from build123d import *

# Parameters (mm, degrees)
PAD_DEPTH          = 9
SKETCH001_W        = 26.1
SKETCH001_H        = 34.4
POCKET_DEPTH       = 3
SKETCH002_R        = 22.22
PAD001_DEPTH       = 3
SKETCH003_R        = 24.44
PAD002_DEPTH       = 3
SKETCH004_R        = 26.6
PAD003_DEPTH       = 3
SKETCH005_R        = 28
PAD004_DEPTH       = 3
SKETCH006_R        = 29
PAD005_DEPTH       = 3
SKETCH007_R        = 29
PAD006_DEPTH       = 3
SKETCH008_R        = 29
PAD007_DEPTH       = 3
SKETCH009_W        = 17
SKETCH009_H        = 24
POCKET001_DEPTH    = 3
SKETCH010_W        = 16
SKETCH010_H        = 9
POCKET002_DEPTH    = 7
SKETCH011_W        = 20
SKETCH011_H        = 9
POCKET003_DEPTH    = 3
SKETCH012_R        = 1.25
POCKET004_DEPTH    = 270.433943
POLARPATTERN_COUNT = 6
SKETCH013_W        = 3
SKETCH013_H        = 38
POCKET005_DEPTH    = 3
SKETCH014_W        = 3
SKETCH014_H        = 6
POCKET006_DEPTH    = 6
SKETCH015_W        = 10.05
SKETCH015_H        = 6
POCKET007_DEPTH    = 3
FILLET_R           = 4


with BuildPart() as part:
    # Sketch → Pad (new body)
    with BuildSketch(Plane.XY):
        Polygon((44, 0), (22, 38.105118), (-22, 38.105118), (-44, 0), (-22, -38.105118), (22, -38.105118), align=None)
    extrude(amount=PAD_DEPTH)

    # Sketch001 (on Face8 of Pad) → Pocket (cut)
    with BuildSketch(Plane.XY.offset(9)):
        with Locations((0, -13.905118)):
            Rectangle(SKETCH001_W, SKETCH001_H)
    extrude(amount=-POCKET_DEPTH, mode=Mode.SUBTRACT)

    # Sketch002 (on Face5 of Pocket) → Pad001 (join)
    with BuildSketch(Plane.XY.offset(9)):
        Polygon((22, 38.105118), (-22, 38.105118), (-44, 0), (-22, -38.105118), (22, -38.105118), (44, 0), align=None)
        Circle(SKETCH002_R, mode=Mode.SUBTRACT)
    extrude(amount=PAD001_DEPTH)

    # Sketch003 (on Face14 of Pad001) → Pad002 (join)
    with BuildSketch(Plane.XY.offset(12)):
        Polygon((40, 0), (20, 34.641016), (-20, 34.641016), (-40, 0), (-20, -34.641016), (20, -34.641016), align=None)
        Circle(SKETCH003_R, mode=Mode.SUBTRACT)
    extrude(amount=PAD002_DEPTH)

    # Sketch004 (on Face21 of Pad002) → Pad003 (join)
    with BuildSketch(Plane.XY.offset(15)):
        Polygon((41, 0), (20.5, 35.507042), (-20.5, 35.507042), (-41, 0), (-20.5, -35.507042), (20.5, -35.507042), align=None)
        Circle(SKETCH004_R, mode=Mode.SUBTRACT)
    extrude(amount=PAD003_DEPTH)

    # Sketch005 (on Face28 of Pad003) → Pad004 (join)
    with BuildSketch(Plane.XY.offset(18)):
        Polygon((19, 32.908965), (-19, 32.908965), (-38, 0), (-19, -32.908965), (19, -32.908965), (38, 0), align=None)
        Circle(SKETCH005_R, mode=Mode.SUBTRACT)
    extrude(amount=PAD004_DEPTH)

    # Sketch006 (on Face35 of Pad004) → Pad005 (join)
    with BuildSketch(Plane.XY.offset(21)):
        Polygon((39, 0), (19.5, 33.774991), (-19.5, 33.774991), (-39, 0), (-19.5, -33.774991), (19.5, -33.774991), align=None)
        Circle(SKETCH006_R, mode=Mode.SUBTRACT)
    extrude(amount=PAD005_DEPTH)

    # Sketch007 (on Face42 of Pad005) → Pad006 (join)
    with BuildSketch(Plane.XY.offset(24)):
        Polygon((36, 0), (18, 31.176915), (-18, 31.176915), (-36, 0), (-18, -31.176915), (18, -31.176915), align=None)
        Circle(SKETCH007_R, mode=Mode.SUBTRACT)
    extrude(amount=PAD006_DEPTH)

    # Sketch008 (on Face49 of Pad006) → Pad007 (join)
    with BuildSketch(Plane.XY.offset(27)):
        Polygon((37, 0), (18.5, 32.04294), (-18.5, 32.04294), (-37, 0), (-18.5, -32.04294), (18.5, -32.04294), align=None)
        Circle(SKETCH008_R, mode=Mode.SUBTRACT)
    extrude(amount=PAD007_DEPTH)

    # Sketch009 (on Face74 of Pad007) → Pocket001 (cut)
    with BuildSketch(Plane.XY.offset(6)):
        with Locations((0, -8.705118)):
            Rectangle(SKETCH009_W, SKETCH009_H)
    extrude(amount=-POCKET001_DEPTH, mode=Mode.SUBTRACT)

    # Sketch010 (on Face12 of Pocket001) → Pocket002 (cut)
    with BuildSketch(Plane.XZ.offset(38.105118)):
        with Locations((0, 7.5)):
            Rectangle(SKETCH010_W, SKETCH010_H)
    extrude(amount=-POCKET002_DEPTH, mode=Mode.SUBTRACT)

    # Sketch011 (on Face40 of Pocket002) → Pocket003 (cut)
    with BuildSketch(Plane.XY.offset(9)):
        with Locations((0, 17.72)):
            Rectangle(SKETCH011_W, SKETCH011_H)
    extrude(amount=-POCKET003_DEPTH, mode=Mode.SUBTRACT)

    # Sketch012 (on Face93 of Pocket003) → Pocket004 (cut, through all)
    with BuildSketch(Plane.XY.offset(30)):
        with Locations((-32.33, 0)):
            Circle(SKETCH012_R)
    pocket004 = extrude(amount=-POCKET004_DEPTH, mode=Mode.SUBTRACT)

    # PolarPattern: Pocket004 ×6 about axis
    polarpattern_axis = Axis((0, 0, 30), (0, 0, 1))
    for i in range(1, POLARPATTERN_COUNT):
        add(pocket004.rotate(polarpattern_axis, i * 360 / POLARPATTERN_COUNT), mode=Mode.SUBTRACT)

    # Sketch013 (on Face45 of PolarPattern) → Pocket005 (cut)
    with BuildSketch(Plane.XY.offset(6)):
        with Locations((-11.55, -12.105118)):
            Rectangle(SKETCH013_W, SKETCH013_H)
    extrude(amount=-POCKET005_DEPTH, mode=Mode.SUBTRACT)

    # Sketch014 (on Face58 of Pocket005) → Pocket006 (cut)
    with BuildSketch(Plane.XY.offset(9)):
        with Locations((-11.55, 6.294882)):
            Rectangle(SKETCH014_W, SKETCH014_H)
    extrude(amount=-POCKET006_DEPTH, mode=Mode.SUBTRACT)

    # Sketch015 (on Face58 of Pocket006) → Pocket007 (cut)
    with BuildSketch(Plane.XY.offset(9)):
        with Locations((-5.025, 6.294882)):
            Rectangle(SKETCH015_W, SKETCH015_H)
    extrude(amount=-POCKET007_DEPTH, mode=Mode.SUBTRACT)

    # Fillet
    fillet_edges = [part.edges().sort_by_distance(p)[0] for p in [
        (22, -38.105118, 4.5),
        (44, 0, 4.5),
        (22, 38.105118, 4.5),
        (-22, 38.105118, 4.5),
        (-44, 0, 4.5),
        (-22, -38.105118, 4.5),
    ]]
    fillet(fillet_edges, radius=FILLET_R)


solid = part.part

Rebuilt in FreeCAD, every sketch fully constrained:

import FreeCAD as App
import Part
import Sketcher
Q = App.Units.Quantity


def edges_at(feature, points):
    """Names of the edges that pass closest to the given points."""
    edges = feature.Shape.Edges
    near = lambda p: min(range(len(edges)), key=lambda i: edges[i].distToShape(Part.Vertex(*p))[0])
    return sorted({f"Edge{near(p) + 1}" for p in points})


def add_polygon(sketch, points):
    """Adds a closed chain of lines whose ends are joined by coincident constraints."""
    first, n = sketch.GeometryCount, len(points)
    for a, b in zip(points, points[1:] + points[:1]):
        sketch.addGeometry(Part.LineSegment(App.Vector(*a, 0), App.Vector(*b, 0)), False)
    for i in range(n):
        sketch.addConstraint(Sketcher.Constraint("Coincident", first + i, 2, first + (i + 1) % n, 1))

doc = App.newDocument("Part")
body = doc.addObject("PartDesign::Body", "Body")

# Sketch on XY plane
sketch1 = body.newObject("Sketcher::SketchObject", "Sketch")
sketch1.AttachmentSupport = (doc.getObject("XY_Plane"), [""])
sketch1.MapMode = "FlatFace"
add_polygon(sketch1, [(44, 0), (22, 38), (-22, 38), (-44, 0), (-22, -38), (22, -38)])  # lines 0-5
sketch1.addConstraint([
    Sketcher.Constraint("Horizontal", 1),
    Sketcher.Constraint("Horizontal", 4),
    Sketcher.Constraint("Symmetric", 0, 2, 3, 2, -1, 1),
    Sketcher.Constraint("Symmetric", 2, 2, 5, 2, -1, 1),
    Sketcher.Constraint("PointOnObject", 2, 2, -1),
    Sketcher.Constraint("Parallel", 2, 5),
    Sketcher.Constraint("Vertical", 1, 2, 3, 2),
    Sketcher.Constraint("DistanceX", 1, 2, 1, 1, Q("44 mm")),
    Sketcher.Constraint("Angle", 0, Q("120 deg")),
    Sketcher.Constraint("Distance", 0, Q("44 mm")),
])
pad1 = body.newObject("PartDesign::Pad", "Pad")
pad1.Profile = sketch1
pad1.Length = 9

# Sketch on XY plane
sketch2 = body.newObject("Sketcher::SketchObject", "Sketch001")
sketch2.AttachmentSupport = (doc.getObject("XY_Plane"), [""])
sketch2.MapMode = "FlatFace"
sketch2.AttachmentOffset = App.Placement(App.Vector(0, 0, 9), App.Rotation())
add_polygon(sketch2, [(-13, 3), (-13, -31), (13, -31), (13, 3)])  # lines 0-3
sketch2.addConstraint([
    Sketcher.Constraint("Vertical", 0),
    Sketcher.Constraint("Horizontal", 1),
    Sketcher.Constraint("Vertical", 2),
    Sketcher.Constraint("Horizontal", 3),
    Sketcher.Constraint("DistanceX", 1, 1, 1, 2, Q("26.1 mm")),
    Sketcher.Constraint("DistanceY", 0, 2, 0, 1, Q("34.4 mm")),
    Sketcher.Constraint("DistanceX", 0, 2, -1, 1, Q("13.05 mm")),
    Sketcher.Constraint("DistanceY", 0, 2, -1, 1, Q("31.105118 mm")),
])
pocket1 = body.newObject("PartDesign::Pocket", "Pocket")
pocket1.Profile = sketch2
pocket1.Length = 3

# Sketch on XY plane
sketch3 = body.newObject("Sketcher::SketchObject", "Sketch002")
sketch3.AttachmentSupport = (doc.getObject("XY_Plane"), [""])
sketch3.MapMode = "FlatFace"
sketch3.AttachmentOffset = App.Placement(App.Vector(0, 0, 9), App.Rotation())
add_polygon(sketch3, [(22, 38), (-22, 38), (-44, 0), (-22, -38), (22, -38), (44, 0)])  # lines 0-5
sketch3.addGeometry(Part.Circle(App.Vector(0, 0, 0), App.Vector(0, 0, 1), 22), False)  # 6
sketch3.addConstraint([
    Sketcher.Constraint("Horizontal", 0),
    Sketcher.Constraint("Horizontal", 3),
    Sketcher.Constraint("Coincident", 6, 3, -1, 1),
    Sketcher.Constraint("Symmetric", 0, 2, 3, 2, -1, 1),
    Sketcher.Constraint("Symmetric", 1, 2, 4, 2, -1, 1),
    Sketcher.Constraint("PointOnObject", 1, 2, -1),
    Sketcher.Constraint("Parallel", 2, 5),
    Sketcher.Constraint("Vertical", 0, 2, 2, 2),
    Sketcher.Constraint("Diameter", 6, Q("44.44 mm")),
    Sketcher.Constraint("DistanceX", 0, 2, 0, 1, Q("44 mm")),
    Sketcher.Constraint("Angle", 1, Q("-120 deg")),
    Sketcher.Constraint("Distance", 1, Q("44 mm")),
])
pad2 = body.newObject("PartDesign::Pad", "Pad001")
pad2.Profile = sketch3
pad2.Length = 3

# Sketch on XY plane
sketch4 = body.newObject("Sketcher::SketchObject", "Sketch003")
sketch4.AttachmentSupport = (doc.getObject("XY_Plane"), [""])
sketch4.MapMode = "FlatFace"
sketch4.AttachmentOffset = App.Placement(App.Vector(0, 0, 12), App.Rotation())
add_polygon(sketch4, [(40, 0), (20, 35), (-20, 35), (-40, 0), (-20, -35), (20, -35)])  # lines 0-5
sketch4.addGeometry(Part.Circle(App.Vector(0, 0, 0), App.Vector(0, 0, 1), 24), False)  # 6
sketch4.addConstraint([
    Sketcher.Constraint("Horizontal", 1),
    Sketcher.Constraint("Horizontal", 4),
    Sketcher.Constraint("Coincident", 6, 3, -1, 1),
    Sketcher.Constraint("Symmetric", 0, 2, 3, 2, -1, 1),
    Sketcher.Constraint("Symmetric", 2, 2, 5, 2, -1, 1),
    Sketcher.Constraint("PointOnObject", 2, 2, -1),
    Sketcher.Constraint("Parallel", 2, 5),
    Sketcher.Constraint("Vertical", 1, 2, 3, 2),
    Sketcher.Constraint("Diameter", 6, Q("48.88 mm")),
    Sketcher.Constraint("DistanceX", 1, 2, 1, 1, Q("40 mm")),
    Sketcher.Constraint("Angle", 0, Q("120 deg")),
    Sketcher.Constraint("Distance", 0, Q("40 mm")),
])
pad3 = body.newObject("PartDesign::Pad", "Pad002")
pad3.Profile = sketch4
pad3.Length = 3

# Sketch on XY plane
sketch5 = body.newObject("Sketcher::SketchObject", "Sketch004")
sketch5.AttachmentSupport = (doc.getObject("XY_Plane"), [""])
sketch5.MapMode = "FlatFace"
sketch5.AttachmentOffset = App.Placement(App.Vector(0, 0, 15), App.Rotation())
add_polygon(sketch5, [(41, 0), (20, 36), (-20, 36), (-41, 0), (-20, -36), (20, -36)])  # lines 0-5
sketch5.addGeometry(Part.Circle(App.Vector(0, 0, 0), App.Vector(0, 0, 1), 27), False)  # 6
sketch5.addConstraint([
    Sketcher.Constraint("Horizontal", 1),
    Sketcher.Constraint("Horizontal", 4),
    Sketcher.Constraint("Coincident", 6, 3, -1, 1),
    Sketcher.Constraint("Symmetric", 0, 2, 3, 2, -1, 1),
    Sketcher.Constraint("Symmetric", 2, 2, 5, 2, -1, 1),
    Sketcher.Constraint("PointOnObject", 2, 2, -1),
    Sketcher.Constraint("Parallel", 2, 5),
    Sketcher.Constraint("Vertical", 1, 2, 3, 2),
    Sketcher.Constraint("Diameter", 6, Q("53.2 mm")),
    Sketcher.Constraint("DistanceX", 1, 2, 1, 1, Q("41 mm")),
    Sketcher.Constraint("Angle", 0, Q("120 deg")),
    Sketcher.Constraint("Distance", 0, Q("41 mm")),
])
pad4 = body.newObject("PartDesign::Pad", "Pad003")
pad4.Profile = sketch5
pad4.Length = 3

# Sketch on XY plane
sketch6 = body.newObject("Sketcher::SketchObject", "Sketch005")
sketch6.AttachmentSupport = (doc.getObject("XY_Plane"), [""])
sketch6.MapMode = "FlatFace"
sketch6.AttachmentOffset = App.Placement(App.Vector(0, 0, 18), App.Rotation())
add_polygon(sketch6, [(19, 33), (-19, 33), (-38, 0), (-19, -33), (19, -33), (38, 0)])  # lines 0-5
sketch6.addGeometry(Part.Circle(App.Vector(0, 0, 0), App.Vector(0, 0, 1), 28), False)  # 6
sketch6.addConstraint([
    Sketcher.Constraint("Horizontal", 0),
    Sketcher.Constraint("Horizontal", 3),
    Sketcher.Constraint("Coincident", 6, 3, -1, 1),
    Sketcher.Constraint("Symmetric", 0, 2, 3, 2, -1, 1),
    Sketcher.Constraint("Symmetric", 1, 2, 4, 2, -1, 1),
    Sketcher.Constraint("PointOnObject", 1, 2, -1),
    Sketcher.Constraint("Parallel", 2, 5),
    Sketcher.Constraint("Vertical", 0, 2, 2, 2),
    Sketcher.Constraint("Diameter", 6, Q("56 mm")),
    Sketcher.Constraint("DistanceX", 0, 2, 0, 1, Q("38 mm")),
    Sketcher.Constraint("Angle", 1, Q("-120 deg")),
    Sketcher.Constraint("Distance", 1, Q("38 mm")),
])
pad5 = body.newObject("PartDesign::Pad", "Pad004")
pad5.Profile = sketch6
pad5.Length = 3

# Sketch on XY plane
sketch7 = body.newObject("Sketcher::SketchObject", "Sketch006")
sketch7.AttachmentSupport = (doc.getObject("XY_Plane"), [""])
sketch7.MapMode = "FlatFace"
sketch7.AttachmentOffset = App.Placement(App.Vector(0, 0, 21), App.Rotation())
add_polygon(sketch7, [(39, 0), (20, 34), (-20, 34), (-39, 0), (-20, -34), (20, -34)])  # lines 0-5
sketch7.addGeometry(Part.Circle(App.Vector(0, 0, 0), App.Vector(0, 0, 1), 29), False)  # 6
sketch7.addConstraint([
    Sketcher.Constraint("Horizontal", 1),
    Sketcher.Constraint("Horizontal", 4),
    Sketcher.Constraint("Coincident", 6, 3, -1, 1),
    Sketcher.Constraint("Symmetric", 0, 2, 3, 2, -1, 1),
    Sketcher.Constraint("Symmetric", 2, 2, 5, 2, -1, 1),
    Sketcher.Constraint("PointOnObject", 2, 2, -1),
    Sketcher.Constraint("Parallel", 2, 5),
    Sketcher.Constraint("Vertical", 1, 2, 3, 2),
    Sketcher.Constraint("Diameter", 6, Q("58 mm")),
    Sketcher.Constraint("DistanceX", 1, 2, 1, 1, Q("39 mm")),
    Sketcher.Constraint("Angle", 0, Q("120 deg")),
    Sketcher.Constraint("Distance", 0, Q("39 mm")),
])
pad6 = body.newObject("PartDesign::Pad", "Pad005")
pad6.Profile = sketch7
pad6.Length = 3

# Sketch on XY plane
sketch8 = body.newObject("Sketcher::SketchObject", "Sketch007")
sketch8.AttachmentSupport = (doc.getObject("XY_Plane"), [""])
sketch8.MapMode = "FlatFace"
sketch8.AttachmentOffset = App.Placement(App.Vector(0, 0, 24), App.Rotation())
add_polygon(sketch8, [(36, 0), (18, 31), (-18, 31), (-36, 0), (-18, -31), (18, -31)])  # lines 0-5
sketch8.addGeometry(Part.Circle(App.Vector(0, 0, 0), App.Vector(0, 0, 1), 29), False)  # 6
sketch8.addConstraint([
    Sketcher.Constraint("Horizontal", 1),
    Sketcher.Constraint("Horizontal", 4),
    Sketcher.Constraint("Coincident", 6, 3, -1, 1),
    Sketcher.Constraint("Symmetric", 0, 2, 3, 2, -1, 1),
    Sketcher.Constraint("Symmetric", 2, 2, 5, 2, -1, 1),
    Sketcher.Constraint("PointOnObject", 2, 2, -1),
    Sketcher.Constraint("Parallel", 2, 5),
    Sketcher.Constraint("Vertical", 1, 2, 3, 2),
    Sketcher.Constraint("Diameter", 6, Q("58 mm")),
    Sketcher.Constraint("DistanceX", 1, 2, 1, 1, Q("36 mm")),
    Sketcher.Constraint("Angle", 0, Q("120 deg")),
    Sketcher.Constraint("Distance", 0, Q("36 mm")),
])
pad7 = body.newObject("PartDesign::Pad", "Pad006")
pad7.Profile = sketch8
pad7.Length = 3

# Sketch on XY plane
sketch9 = body.newObject("Sketcher::SketchObject", "Sketch008")
sketch9.AttachmentSupport = (doc.getObject("XY_Plane"), [""])
sketch9.MapMode = "FlatFace"
sketch9.AttachmentOffset = App.Placement(App.Vector(0, 0, 27), App.Rotation())
add_polygon(sketch9, [(37, 0), (18, 32), (-18, 32), (-37, 0), (-18, -32), (18, -32)])  # lines 0-5
sketch9.addGeometry(Part.Circle(App.Vector(0, 0, 0), App.Vector(0, 0, 1), 29), False)  # 6
sketch9.addConstraint([
    Sketcher.Constraint("Horizontal", 1),
    Sketcher.Constraint("Horizontal", 4),
    Sketcher.Constraint("Coincident", 6, 3, -1, 1),
    Sketcher.Constraint("Symmetric", 0, 2, 3, 2, -1, 1),
    Sketcher.Constraint("Symmetric", 2, 2, 5, 2, -1, 1),
    Sketcher.Constraint("PointOnObject", 2, 2, -1),
    Sketcher.Constraint("Parallel", 2, 5),
    Sketcher.Constraint("Vertical", 1, 2, 3, 2),
    Sketcher.Constraint("Diameter", 6, Q("58 mm")),
    Sketcher.Constraint("DistanceX", 1, 2, 1, 1, Q("37 mm")),
    Sketcher.Constraint("Angle", 0, Q("120 deg")),
    Sketcher.Constraint("Distance", 0, Q("37 mm")),
])
pad8 = body.newObject("PartDesign::Pad", "Pad007")
pad8.Profile = sketch9
pad8.Length = 3

# Sketch on XY plane
sketch10 = body.newObject("Sketcher::SketchObject", "Sketch009")
sketch10.AttachmentSupport = (doc.getObject("XY_Plane"), [""])
sketch10.MapMode = "FlatFace"
sketch10.AttachmentOffset = App.Placement(App.Vector(0, 0, 6), App.Rotation())
add_polygon(sketch10, [(-8, 3), (-8, -21), (8, -21), (8, 3)])  # lines 0-3
sketch10.addConstraint([
    Sketcher.Constraint("Vertical", 0),
    Sketcher.Constraint("Horizontal", 1),
    Sketcher.Constraint("Vertical", 2),
    Sketcher.Constraint("Horizontal", 3),
    Sketcher.Constraint("DistanceX", 1, 1, 1, 2, Q("17 mm")),
    Sketcher.Constraint("DistanceY", 0, 2, 0, 1, Q("24 mm")),
    Sketcher.Constraint("DistanceX", 0, 2, -1, 1, Q("8.5 mm")),
    Sketcher.Constraint("DistanceY", -1, 1, 2, 2, Q("3.294882 mm")),
])
pocket2 = body.newObject("PartDesign::Pocket", "Pocket001")
pocket2.Profile = sketch10
pocket2.Length = 3

# Sketch on XZ plane
sketch11 = body.newObject("Sketcher::SketchObject", "Sketch010")
sketch11.AttachmentSupport = (doc.getObject("XZ_Plane"), [""])
sketch11.MapMode = "FlatFace"
sketch11.AttachmentOffset = App.Placement(App.Vector(0, 0, 38.105118), App.Rotation())
add_polygon(sketch11, [(-8, 12), (-8, 3), (8, 3), (8, 12)])  # lines 0-3
sketch11.addConstraint([
    Sketcher.Constraint("Vertical", 0),
    Sketcher.Constraint("Horizontal", 1),
    Sketcher.Constraint("Vertical", 2),
    Sketcher.Constraint("Horizontal", 3),
    Sketcher.Constraint("DistanceX", 1, 1, 1, 2, Q("16 mm")),
    Sketcher.Constraint("DistanceY", 0, 2, 0, 1, Q("9 mm")),
    Sketcher.Constraint("DistanceX", 0, 2, -1, 1, Q("8 mm")),
    Sketcher.Constraint("DistanceY", -1, 1, 0, 2, Q("3 mm")),
])
pocket3 = body.newObject("PartDesign::Pocket", "Pocket002")
pocket3.Profile = sketch11
pocket3.Length = 7

# Sketch on XY plane
sketch12 = body.newObject("Sketcher::SketchObject", "Sketch011")
sketch12.AttachmentSupport = (doc.getObject("XY_Plane"), [""])
sketch12.MapMode = "FlatFace"
sketch12.AttachmentOffset = App.Placement(App.Vector(0, 0, 9), App.Rotation())
add_polygon(sketch12, [(-10, 22), (-10, 13), (10, 13), (10, 22)])  # lines 0-3
sketch12.addConstraint([
    Sketcher.Constraint("Vertical", 0),
    Sketcher.Constraint("Horizontal", 1),
    Sketcher.Constraint("Vertical", 2),
    Sketcher.Constraint("Horizontal", 3),
    Sketcher.Constraint("DistanceX", 1, 1, 1, 2, Q("20 mm")),
    Sketcher.Constraint("DistanceY", 0, 2, 0, 1, Q("9 mm")),
    Sketcher.Constraint("DistanceX", 0, 2, -1, 1, Q("10 mm")),
    Sketcher.Constraint("DistanceY", -1, 1, 0, 2, Q("13.22 mm")),
])
pocket4 = body.newObject("PartDesign::Pocket", "Pocket003")
pocket4.Profile = sketch12
pocket4.Length = 3

# Sketch on XY plane
sketch13 = body.newObject("Sketcher::SketchObject", "Sketch012")
sketch13.AttachmentSupport = (doc.getObject("XY_Plane"), [""])
sketch13.MapMode = "FlatFace"
sketch13.AttachmentOffset = App.Placement(App.Vector(0, 0, 30), App.Rotation())
sketch13.addGeometry(Part.Circle(App.Vector(-32.3, 0, 0), App.Vector(0, 0, 1), 1.2), False)
sketch13.addConstraint([
    Sketcher.Constraint("PointOnObject", 0, 3, -1),
    Sketcher.Constraint("Diameter", 0, Q("2.5 mm")),
    Sketcher.Constraint("DistanceX", 0, 3, -1, 1, Q("32.33 mm")),
])
pocket5 = body.newObject("PartDesign::Pocket", "Pocket004")
pocket5.Profile = sketch13
pocket5.Type = "ThroughAll"
doc.recompute()

polarpattern = body.newObject("PartDesign::PolarPattern", "PolarPattern")
polarpattern.Originals = [pocket5]
polarpattern.Axis = (doc.getObject("Z_Axis"), [""])
polarpattern.Angle = 360
polarpattern.Occurrences = 6
body.Tip = polarpattern

# Sketch on XY plane
sketch14 = body.newObject("Sketcher::SketchObject", "Sketch013")
sketch14.AttachmentSupport = (doc.getObject("XY_Plane"), [""])
sketch14.MapMode = "FlatFace"
sketch14.AttachmentOffset = App.Placement(App.Vector(0, 0, 6), App.Rotation())
add_polygon(sketch14, [(-13.1, 6.9), (-13.1, -31.1), (-10.1, -31.1), (-10.1, 6.9)])  # lines 0-3
sketch14.addConstraint([
    Sketcher.Constraint("Vertical", 0),
    Sketcher.Constraint("Horizontal", 1),
    Sketcher.Constraint("Vertical", 2),
    Sketcher.Constraint("Horizontal", 3),
    Sketcher.Constraint("DistanceX", 1, 1, 1, 2, Q("3 mm")),
    Sketcher.Constraint("DistanceY", 0, 2, 0, 1, Q("38 mm")),
    Sketcher.Constraint("DistanceX", 0, 2, -1, 1, Q("13.05 mm")),
    Sketcher.Constraint("DistanceY", 0, 2, -1, 1, Q("31.105118 mm")),
])
pocket6 = body.newObject("PartDesign::Pocket", "Pocket005")
pocket6.Profile = sketch14
pocket6.Length = 3

# Sketch on XY plane
sketch15 = body.newObject("Sketcher::SketchObject", "Sketch014")
sketch15.AttachmentSupport = (doc.getObject("XY_Plane"), [""])
sketch15.MapMode = "FlatFace"
sketch15.AttachmentOffset = App.Placement(App.Vector(0, 0, 9), App.Rotation())
add_polygon(sketch15, [(-13.1, 9.3), (-13.1, 3.3), (-10.1, 3.3), (-10.1, 9.3)])  # lines 0-3
sketch15.addConstraint([
    Sketcher.Constraint("Vertical", 0),
    Sketcher.Constraint("Horizontal", 1),
    Sketcher.Constraint("Vertical", 2),
    Sketcher.Constraint("Horizontal", 3),
    Sketcher.Constraint("DistanceX", 1, 1, 1, 2, Q("3 mm")),
    Sketcher.Constraint("DistanceY", 0, 2, 0, 1, Q("6 mm")),
    Sketcher.Constraint("DistanceX", 0, 2, -1, 1, Q("13.05 mm")),
    Sketcher.Constraint("DistanceY", -1, 1, 0, 2, Q("3.294882 mm")),
])
pocket7 = body.newObject("PartDesign::Pocket", "Pocket006")
pocket7.Profile = sketch15
pocket7.Length = 6

# Sketch on XY plane
sketch16 = body.newObject("Sketcher::SketchObject", "Sketch015")
sketch16.AttachmentSupport = (doc.getObject("XY_Plane"), [""])
sketch16.MapMode = "FlatFace"
sketch16.AttachmentOffset = App.Placement(App.Vector(0, 0, 9), App.Rotation())
add_polygon(sketch16, [(-10, 9), (-10, 3), (0, 3), (0, 9)])  # lines 0-3
sketch16.addConstraint([
    Sketcher.Constraint("Vertical", 0),
    Sketcher.Constraint("Horizontal", 1),
    Sketcher.Constraint("Vertical", 2),
    Sketcher.Constraint("Horizontal", 3),
    Sketcher.Constraint("PointOnObject", 1, 2, -2),
    Sketcher.Constraint("DistanceY", 0, 2, 0, 1, Q("6 mm")),
    Sketcher.Constraint("DistanceX", 1, 1, 1, 2, Q("10.05 mm")),
    Sketcher.Constraint("DistanceY", -1, 1, 0, 2, Q("3.294882 mm")),
])
pocket8 = body.newObject("PartDesign::Pocket", "Pocket007")
pocket8.Profile = sketch16
pocket8.Length = 3
doc.recompute()

fillet = body.newObject("PartDesign::Fillet", "Fillet")
fillet.Base = (pocket8, edges_at(pocket8, [
    (22, -38.105, 6),
    (44, 0, 6),
    (22, 38.105, 6),
    (-22, 38.105, 6),
    (-44, 0, 6),
    (-22, -38.105, 6),
]))
fillet.Radius = 4

doc.recompute()
